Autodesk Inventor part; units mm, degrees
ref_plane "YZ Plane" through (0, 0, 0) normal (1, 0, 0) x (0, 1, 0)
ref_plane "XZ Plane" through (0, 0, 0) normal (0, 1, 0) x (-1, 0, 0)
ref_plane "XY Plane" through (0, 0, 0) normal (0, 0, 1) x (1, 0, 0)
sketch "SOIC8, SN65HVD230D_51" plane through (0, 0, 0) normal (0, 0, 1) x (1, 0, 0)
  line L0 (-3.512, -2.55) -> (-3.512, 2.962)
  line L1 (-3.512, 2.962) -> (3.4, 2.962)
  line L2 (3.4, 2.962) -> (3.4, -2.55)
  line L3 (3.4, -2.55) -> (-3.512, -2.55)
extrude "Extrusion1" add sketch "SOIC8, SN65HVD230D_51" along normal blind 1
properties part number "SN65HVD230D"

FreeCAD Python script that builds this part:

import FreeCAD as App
import Part
import Sketcher

V = App.Vector
Q = App.Units.Quantity


def add_polygon(sketch, points):
    """Adds a closed chain of lines whose ends are joined by coincident constraints."""
    first, n = sketch.GeometryCount, len(points)
    for a, b in zip(points, points[1:] + points[:1]):
        sketch.addGeometry(Part.LineSegment(App.Vector(*a, 0), App.Vector(*b, 0)), False)
    for i in range(n):
        sketch.addConstraint(Sketcher.Constraint("Coincident", first + i, 2, first + (i + 1) % n, 1))

doc = App.newDocument("Part")
body = doc.addObject("PartDesign::Body", "Body")

sketch1 = doc.addObject("Sketcher::SketchObject", "Sketch")
body.addObject(sketch1)
sketch1.AttachmentSupport = (doc.XY_Plane, [""])
sketch1.MapMode = "FlatFace"
add_polygon(sketch1, [(-4, 3), (-4, -3), (3, -3), (3, 3)])
sketch1.addConstraint(Sketcher.Constraint("Vertical", 0))
sketch1.addConstraint(Sketcher.Constraint("Horizontal", 1))
sketch1.addConstraint(Sketcher.Constraint("Vertical", 2))
sketch1.addConstraint(Sketcher.Constraint("Horizontal", 3))
sketch1.addConstraint(Sketcher.Constraint("DistanceX", -1, 1, 1, 2, Q("3.4 mm")))
sketch1.addConstraint(Sketcher.Constraint("DistanceX", 1, 1, 1, 2, Q("6.912 mm")))
sketch1.addConstraint(Sketcher.Constraint("DistanceY", 0, 2, 0, 1, Q("5.512 mm")))
sketch1.addConstraint(Sketcher.Constraint("DistanceY", 0, 2, -1, 1, Q("2.55 mm")))
pad1 = doc.addObject("PartDesign::Pad", "Pad")
body.addObject(pad1)
pad1.Profile = sketch1
pad1.Length = 1

doc.recompute()
